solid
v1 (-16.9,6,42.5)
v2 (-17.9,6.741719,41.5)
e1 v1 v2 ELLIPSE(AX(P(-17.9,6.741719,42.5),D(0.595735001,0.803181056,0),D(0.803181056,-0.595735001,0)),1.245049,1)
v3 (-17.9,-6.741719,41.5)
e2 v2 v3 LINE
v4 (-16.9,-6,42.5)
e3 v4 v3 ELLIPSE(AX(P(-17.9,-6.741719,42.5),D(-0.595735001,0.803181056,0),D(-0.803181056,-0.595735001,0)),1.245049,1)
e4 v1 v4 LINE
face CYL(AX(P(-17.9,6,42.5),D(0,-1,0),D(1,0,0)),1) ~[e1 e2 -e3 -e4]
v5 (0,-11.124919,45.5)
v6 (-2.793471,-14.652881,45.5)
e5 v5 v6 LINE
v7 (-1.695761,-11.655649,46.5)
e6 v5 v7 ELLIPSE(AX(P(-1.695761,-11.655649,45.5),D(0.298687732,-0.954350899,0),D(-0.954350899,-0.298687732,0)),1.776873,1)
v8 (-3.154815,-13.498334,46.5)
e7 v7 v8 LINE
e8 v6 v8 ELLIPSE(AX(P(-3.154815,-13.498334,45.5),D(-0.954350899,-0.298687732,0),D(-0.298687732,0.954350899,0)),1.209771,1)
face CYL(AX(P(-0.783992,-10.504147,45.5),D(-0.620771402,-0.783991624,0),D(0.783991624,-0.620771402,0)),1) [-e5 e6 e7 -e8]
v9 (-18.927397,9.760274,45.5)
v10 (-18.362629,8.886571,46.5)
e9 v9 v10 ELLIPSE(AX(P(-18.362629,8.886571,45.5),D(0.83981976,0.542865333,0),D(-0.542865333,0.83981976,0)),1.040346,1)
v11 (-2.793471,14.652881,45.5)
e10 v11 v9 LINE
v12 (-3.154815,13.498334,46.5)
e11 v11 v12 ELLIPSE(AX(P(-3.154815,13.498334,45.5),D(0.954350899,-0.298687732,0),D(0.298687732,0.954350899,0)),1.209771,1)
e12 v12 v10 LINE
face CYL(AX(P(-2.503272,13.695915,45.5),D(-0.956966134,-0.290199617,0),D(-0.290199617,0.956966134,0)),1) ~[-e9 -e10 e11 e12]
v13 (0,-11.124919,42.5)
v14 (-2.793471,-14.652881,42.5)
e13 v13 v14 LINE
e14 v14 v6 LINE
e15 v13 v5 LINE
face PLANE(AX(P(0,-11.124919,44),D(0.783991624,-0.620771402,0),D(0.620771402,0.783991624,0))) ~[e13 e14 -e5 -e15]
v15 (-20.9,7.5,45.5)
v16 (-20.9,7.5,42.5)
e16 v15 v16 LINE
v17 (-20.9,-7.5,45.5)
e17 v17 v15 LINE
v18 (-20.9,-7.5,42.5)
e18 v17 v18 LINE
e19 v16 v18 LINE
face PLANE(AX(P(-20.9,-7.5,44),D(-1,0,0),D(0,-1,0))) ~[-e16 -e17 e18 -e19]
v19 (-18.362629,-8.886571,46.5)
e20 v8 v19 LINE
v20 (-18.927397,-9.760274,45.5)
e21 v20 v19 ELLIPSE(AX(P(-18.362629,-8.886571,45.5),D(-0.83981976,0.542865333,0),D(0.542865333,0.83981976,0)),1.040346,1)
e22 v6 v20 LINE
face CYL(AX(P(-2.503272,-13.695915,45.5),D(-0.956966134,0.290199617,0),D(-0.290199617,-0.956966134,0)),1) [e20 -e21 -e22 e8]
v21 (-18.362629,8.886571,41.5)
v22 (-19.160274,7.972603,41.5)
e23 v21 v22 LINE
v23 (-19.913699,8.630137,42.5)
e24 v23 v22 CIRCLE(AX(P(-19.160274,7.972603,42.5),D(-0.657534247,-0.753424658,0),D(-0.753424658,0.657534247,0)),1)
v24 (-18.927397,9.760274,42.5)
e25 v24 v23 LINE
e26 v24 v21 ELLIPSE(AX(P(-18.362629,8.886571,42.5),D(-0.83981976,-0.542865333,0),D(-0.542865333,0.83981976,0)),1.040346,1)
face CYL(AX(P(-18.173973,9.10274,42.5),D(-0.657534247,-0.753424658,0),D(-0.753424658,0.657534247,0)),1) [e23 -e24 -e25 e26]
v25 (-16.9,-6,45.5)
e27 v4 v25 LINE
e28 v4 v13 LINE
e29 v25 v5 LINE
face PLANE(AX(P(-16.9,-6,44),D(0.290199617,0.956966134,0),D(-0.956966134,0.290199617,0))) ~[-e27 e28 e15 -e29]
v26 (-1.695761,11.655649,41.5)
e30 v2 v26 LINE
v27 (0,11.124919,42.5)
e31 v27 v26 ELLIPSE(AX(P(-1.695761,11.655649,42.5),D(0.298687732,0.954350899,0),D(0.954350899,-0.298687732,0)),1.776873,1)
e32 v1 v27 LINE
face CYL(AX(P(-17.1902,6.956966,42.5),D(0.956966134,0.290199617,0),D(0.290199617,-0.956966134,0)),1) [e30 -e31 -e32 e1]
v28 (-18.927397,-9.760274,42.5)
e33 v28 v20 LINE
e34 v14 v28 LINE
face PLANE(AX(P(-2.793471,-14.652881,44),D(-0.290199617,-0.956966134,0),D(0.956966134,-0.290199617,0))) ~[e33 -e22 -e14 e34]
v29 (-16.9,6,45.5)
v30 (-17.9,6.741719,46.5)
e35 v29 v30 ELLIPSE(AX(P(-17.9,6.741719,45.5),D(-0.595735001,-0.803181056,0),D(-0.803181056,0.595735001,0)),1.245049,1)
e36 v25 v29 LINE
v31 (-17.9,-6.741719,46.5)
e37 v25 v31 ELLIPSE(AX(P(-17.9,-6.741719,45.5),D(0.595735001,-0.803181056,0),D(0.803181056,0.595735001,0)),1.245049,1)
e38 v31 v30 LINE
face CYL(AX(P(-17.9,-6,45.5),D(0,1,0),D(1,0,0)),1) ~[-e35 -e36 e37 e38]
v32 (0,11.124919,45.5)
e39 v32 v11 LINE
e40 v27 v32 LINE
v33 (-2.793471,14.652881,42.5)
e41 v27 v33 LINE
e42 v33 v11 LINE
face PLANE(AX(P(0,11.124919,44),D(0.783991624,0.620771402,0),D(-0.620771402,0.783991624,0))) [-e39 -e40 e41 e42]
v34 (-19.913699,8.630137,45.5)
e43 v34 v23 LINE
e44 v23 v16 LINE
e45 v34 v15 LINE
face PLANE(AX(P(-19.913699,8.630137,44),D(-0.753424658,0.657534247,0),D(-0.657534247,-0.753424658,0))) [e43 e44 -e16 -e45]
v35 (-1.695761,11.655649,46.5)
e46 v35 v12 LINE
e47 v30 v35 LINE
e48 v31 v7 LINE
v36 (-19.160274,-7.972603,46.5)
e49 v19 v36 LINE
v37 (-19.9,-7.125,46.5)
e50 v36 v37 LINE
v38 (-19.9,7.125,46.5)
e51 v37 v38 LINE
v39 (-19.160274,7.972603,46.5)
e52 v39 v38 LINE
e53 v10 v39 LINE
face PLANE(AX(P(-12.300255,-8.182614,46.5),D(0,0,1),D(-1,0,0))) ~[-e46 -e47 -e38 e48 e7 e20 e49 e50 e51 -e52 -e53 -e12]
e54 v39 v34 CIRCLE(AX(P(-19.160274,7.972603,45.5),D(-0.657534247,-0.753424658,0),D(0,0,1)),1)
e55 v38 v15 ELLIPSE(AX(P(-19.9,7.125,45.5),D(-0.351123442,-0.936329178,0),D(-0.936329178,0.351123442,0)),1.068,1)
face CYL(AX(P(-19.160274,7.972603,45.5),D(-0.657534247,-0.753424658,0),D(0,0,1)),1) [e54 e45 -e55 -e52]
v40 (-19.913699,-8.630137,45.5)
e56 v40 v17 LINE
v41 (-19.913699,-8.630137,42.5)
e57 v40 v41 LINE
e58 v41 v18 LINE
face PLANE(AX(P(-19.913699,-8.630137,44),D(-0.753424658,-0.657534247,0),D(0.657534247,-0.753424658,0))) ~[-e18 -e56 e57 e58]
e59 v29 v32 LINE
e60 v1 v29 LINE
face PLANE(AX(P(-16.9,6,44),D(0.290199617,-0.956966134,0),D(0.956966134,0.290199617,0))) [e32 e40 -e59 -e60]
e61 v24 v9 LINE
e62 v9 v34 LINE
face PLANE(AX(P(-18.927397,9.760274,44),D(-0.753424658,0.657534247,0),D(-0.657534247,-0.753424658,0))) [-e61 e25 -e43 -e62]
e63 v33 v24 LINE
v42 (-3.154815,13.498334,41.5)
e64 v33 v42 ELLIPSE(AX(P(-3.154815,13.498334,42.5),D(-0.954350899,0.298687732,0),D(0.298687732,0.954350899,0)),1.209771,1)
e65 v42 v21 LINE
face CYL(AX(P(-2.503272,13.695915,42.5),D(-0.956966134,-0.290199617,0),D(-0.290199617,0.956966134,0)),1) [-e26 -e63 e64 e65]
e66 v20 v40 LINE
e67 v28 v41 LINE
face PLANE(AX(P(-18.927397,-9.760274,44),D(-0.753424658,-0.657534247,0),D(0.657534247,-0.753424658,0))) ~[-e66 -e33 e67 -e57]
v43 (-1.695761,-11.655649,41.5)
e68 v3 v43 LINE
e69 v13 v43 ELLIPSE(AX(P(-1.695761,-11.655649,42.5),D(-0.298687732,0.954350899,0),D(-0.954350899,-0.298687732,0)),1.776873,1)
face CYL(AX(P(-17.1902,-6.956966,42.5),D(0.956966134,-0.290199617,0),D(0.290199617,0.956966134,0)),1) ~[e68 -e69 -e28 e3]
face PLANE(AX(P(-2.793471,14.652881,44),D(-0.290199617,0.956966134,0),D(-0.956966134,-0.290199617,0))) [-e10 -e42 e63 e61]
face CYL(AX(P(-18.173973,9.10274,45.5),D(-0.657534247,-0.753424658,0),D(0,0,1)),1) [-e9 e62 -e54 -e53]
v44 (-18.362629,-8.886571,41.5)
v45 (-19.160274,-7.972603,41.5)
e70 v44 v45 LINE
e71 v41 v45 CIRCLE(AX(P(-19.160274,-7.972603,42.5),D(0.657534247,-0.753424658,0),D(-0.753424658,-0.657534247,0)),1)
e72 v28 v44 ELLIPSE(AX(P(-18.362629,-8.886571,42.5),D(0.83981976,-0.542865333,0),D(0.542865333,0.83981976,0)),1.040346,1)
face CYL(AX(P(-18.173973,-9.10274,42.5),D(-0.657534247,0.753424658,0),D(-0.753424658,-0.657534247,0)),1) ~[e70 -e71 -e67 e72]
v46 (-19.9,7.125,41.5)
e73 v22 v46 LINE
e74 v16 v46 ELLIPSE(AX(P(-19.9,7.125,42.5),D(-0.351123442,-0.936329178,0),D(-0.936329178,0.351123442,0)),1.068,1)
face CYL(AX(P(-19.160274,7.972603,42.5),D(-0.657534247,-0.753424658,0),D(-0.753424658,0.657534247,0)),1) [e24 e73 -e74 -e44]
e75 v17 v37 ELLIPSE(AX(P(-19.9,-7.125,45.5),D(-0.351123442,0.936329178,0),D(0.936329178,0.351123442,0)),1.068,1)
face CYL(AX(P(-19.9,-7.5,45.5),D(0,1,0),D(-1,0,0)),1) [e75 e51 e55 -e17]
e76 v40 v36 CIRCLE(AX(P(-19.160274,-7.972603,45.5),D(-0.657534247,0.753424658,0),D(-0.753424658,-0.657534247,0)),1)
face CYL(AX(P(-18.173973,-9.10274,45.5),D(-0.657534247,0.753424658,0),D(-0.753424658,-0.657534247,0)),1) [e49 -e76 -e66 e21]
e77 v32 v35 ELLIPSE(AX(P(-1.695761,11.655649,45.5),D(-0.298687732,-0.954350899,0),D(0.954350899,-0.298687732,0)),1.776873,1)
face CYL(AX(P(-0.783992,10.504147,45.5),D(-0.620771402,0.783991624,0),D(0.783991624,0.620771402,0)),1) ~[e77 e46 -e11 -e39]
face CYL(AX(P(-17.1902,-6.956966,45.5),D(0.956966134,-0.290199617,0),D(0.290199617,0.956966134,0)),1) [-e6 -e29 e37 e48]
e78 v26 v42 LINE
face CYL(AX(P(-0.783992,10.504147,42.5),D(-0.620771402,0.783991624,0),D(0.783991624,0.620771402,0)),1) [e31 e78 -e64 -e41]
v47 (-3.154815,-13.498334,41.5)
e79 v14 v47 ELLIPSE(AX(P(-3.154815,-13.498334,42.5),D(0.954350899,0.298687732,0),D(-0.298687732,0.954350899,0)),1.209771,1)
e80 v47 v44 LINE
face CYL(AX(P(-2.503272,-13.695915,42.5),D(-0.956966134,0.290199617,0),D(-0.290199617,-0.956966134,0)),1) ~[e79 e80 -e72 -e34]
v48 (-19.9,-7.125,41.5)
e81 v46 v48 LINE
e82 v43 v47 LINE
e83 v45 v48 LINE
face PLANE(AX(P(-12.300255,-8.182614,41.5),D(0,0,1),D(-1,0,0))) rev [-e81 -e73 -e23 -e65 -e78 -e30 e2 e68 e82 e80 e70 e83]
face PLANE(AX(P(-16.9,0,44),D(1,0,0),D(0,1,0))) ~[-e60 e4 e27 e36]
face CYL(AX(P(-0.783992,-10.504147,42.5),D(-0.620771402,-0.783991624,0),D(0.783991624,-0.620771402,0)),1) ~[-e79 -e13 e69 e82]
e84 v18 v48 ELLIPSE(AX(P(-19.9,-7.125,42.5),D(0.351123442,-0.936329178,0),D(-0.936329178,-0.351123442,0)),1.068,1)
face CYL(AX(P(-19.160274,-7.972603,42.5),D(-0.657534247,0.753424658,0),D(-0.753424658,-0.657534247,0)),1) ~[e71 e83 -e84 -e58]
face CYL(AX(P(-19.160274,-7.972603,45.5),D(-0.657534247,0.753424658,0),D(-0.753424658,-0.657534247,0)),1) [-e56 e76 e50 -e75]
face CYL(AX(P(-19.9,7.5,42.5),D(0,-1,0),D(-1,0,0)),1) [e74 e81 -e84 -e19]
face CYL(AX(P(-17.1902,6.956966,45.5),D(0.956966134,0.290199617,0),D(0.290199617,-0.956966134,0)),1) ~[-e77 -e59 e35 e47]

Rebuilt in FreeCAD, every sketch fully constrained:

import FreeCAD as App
import Part
import Sketcher

V = App.Vector
Q = App.Units.Quantity


def edges_at(feature, points):
    """Names of the edges that pass closest to the given points."""
    edges = feature.Shape.Edges
    near = lambda p: min(range(len(edges)), key=lambda i: edges[i].distToShape(Part.Vertex(*p))[0])
    return sorted({f"Edge{near(p) + 1}" for p in points})


def add_polygon(sketch, points):
    """Adds a closed chain of lines whose ends are joined by coincident constraints."""
    first, n = sketch.GeometryCount, len(points)
    for a, b in zip(points, points[1:] + points[:1]):
        sketch.addGeometry(Part.LineSegment(App.Vector(*a, 0), App.Vector(*b, 0)), False)
    for i in range(n):
        sketch.addConstraint(Sketcher.Constraint("Coincident", first + i, 2, first + (i + 1) % n, 1))

doc = App.newDocument("Part")
params = doc.addObject("Spreadsheet::Sheet", "Params")
for row, (alias, value) in enumerate([
    ("sketch1_width", "4 mm"),
    ("sketch1_height", "6 mm"),
    ("sketch1_height2", "7.5 mm"),
    ("sketch1_length", "4.5 mm"),
    ("sketch1_length2", "1.5 mm"),
    ("pad1_length", "2.5 mm"),
    ("pad1_length2", "2.5 mm"),
    ("fillet_radius", "1 mm"),
], start=1):
    params.set(f"A{row}", alias)
    params.set(f"B{row}", "=" + value)
    params.setAlias(f"B{row}", alias)

body = doc.addObject("PartDesign::Body", "Body")

sketch1 = body.newObject("Sketcher::SketchObject", "Sketch")
sketch1.AttachmentSupport = (doc.getObject("XY_Plane"), [""])
sketch1.MapMode = "FlatFace"
sketch1.AttachmentOffset = App.Placement(V(0, 0, 44), App.Rotation())
add_polygon(sketch1, [(-20.9, 0), (-16.9, 0), (-16.9, 6), (0, 11.1), (-2.8, 14.7), (-18.9, 9.8), (-19.9, 8.6), (-20.9, 7.5)])
sketch1.addConstraint(Sketcher.Constraint("Horizontal", 0))
sketch1.addConstraint(Sketcher.Constraint("Vertical", 1))
sketch1.addConstraint(Sketcher.Constraint("Vertical", 7))
sketch1.addConstraint(Sketcher.Constraint("PointOnObject", 0, 2, -1))
sketch1.addConstraint(Sketcher.Constraint("PointOnObject", 2, 2, -2))
sketch1.addConstraint(Sketcher.Constraint("Parallel", 2, 4))
sketch1.addConstraint(Sketcher.Constraint("Parallel", 5, 6))
sketch1.addConstraint(Sketcher.Constraint("Equal", 5, 6))
sketch1.addConstraint(Sketcher.Constraint("DistanceX", 0, 1, 0, 2, Q("4 mm")))
sketch1.addConstraint(Sketcher.Constraint("DistanceY", 1, 1, 1, 2, Q("6 mm")))
sketch1.addConstraint(Sketcher.Constraint("DistanceY", 7, 2, 7, 1, Q("7.5 mm")))
sketch1.addConstraint(Sketcher.Constraint("Distance", 3, Q("4.5 mm")))
sketch1.addConstraint(Sketcher.Constraint("Distance", 5, Q("1.5 mm")))
sketch1.addConstraint(Sketcher.Constraint("DistanceX", 0, 2, -1, 1, Q("16.9 mm")))
sketch1.addConstraint(Sketcher.Constraint("DistanceX", 5, 2, -1, 1, Q("19.913699 mm")))
sketch1.addConstraint(Sketcher.Constraint("DistanceY", -1, 1, 2, 2, Q("11.124919 mm")))
sketch1.setExpression("Constraints[16]", "Params.sketch1_width")
sketch1.setExpression("Constraints[17]", "Params.sketch1_height")
sketch1.setExpression("Constraints[18]", "Params.sketch1_height2")
sketch1.setExpression("Constraints[19]", "Params.sketch1_length")
sketch1.setExpression("Constraints[20]", "Params.sketch1_length2")
pad1 = body.newObject("PartDesign::Pad", "Pad")
pad1.Profile = sketch1
pad1.Type = "TwoLengths"
pad1.setExpression("Length", "Params.pad1_length")
pad1.setExpression("Length2", "Params.pad1_length2")
body2 = doc.addObject("PartDesign::Body", "Body001")
doc.recompute()

body2.BaseFeature = body
doc.recompute()

mirroring = doc.addObject("Part::Mirroring", "Mirroring")
mirroring.Source = body
mirroring.Base = V(0, 0, 0)
mirroring.Normal = V(0, -1, 0)
body3 = doc.addObject("PartDesign::Body", "Body002")
body3.BaseFeature = mirroring
boolean = body2.newObject("PartDesign::Boolean", "Boolean")
boolean.Type = "Fuse"
boolean.addObjects([body3])
doc.recompute()

fillet = body2.newObject("PartDesign::Fillet", "Fillet")
fillet.Base = (boolean, edges_at(boolean, [
    (-16.9, 0, 46.5),
    (-8.45, 8.562, 46.5),
    (-1.397, 12.889, 46.5),
    (-10.86, 12.207, 46.5),
    (-20.407, 8.065, 46.5),
    (-20.9, 0, 46.5),
    (-20.407, -8.065, 46.5),
    (-10.86, -12.207, 46.5),
    (-1.397, -12.889, 46.5),
    (-8.45, -8.562, 46.5),
    (-16.9, 0, 41.5),
    (-8.45, 8.562, 41.5),
    (-1.397, 12.889, 41.5),
    (-10.86, 12.207, 41.5),
    (-20.407, 8.065, 41.5),
    (-20.9, 0, 41.5),
    (-20.407, -8.065, 41.5),
    (-10.86, -12.207, 41.5),
    (-1.397, -12.889, 41.5),
    (-8.45, -8.562, 41.5),
]))
fillet.setExpression("Radius", "Params.fillet_radius")
mirroring.Visibility = False

doc.recompute()
